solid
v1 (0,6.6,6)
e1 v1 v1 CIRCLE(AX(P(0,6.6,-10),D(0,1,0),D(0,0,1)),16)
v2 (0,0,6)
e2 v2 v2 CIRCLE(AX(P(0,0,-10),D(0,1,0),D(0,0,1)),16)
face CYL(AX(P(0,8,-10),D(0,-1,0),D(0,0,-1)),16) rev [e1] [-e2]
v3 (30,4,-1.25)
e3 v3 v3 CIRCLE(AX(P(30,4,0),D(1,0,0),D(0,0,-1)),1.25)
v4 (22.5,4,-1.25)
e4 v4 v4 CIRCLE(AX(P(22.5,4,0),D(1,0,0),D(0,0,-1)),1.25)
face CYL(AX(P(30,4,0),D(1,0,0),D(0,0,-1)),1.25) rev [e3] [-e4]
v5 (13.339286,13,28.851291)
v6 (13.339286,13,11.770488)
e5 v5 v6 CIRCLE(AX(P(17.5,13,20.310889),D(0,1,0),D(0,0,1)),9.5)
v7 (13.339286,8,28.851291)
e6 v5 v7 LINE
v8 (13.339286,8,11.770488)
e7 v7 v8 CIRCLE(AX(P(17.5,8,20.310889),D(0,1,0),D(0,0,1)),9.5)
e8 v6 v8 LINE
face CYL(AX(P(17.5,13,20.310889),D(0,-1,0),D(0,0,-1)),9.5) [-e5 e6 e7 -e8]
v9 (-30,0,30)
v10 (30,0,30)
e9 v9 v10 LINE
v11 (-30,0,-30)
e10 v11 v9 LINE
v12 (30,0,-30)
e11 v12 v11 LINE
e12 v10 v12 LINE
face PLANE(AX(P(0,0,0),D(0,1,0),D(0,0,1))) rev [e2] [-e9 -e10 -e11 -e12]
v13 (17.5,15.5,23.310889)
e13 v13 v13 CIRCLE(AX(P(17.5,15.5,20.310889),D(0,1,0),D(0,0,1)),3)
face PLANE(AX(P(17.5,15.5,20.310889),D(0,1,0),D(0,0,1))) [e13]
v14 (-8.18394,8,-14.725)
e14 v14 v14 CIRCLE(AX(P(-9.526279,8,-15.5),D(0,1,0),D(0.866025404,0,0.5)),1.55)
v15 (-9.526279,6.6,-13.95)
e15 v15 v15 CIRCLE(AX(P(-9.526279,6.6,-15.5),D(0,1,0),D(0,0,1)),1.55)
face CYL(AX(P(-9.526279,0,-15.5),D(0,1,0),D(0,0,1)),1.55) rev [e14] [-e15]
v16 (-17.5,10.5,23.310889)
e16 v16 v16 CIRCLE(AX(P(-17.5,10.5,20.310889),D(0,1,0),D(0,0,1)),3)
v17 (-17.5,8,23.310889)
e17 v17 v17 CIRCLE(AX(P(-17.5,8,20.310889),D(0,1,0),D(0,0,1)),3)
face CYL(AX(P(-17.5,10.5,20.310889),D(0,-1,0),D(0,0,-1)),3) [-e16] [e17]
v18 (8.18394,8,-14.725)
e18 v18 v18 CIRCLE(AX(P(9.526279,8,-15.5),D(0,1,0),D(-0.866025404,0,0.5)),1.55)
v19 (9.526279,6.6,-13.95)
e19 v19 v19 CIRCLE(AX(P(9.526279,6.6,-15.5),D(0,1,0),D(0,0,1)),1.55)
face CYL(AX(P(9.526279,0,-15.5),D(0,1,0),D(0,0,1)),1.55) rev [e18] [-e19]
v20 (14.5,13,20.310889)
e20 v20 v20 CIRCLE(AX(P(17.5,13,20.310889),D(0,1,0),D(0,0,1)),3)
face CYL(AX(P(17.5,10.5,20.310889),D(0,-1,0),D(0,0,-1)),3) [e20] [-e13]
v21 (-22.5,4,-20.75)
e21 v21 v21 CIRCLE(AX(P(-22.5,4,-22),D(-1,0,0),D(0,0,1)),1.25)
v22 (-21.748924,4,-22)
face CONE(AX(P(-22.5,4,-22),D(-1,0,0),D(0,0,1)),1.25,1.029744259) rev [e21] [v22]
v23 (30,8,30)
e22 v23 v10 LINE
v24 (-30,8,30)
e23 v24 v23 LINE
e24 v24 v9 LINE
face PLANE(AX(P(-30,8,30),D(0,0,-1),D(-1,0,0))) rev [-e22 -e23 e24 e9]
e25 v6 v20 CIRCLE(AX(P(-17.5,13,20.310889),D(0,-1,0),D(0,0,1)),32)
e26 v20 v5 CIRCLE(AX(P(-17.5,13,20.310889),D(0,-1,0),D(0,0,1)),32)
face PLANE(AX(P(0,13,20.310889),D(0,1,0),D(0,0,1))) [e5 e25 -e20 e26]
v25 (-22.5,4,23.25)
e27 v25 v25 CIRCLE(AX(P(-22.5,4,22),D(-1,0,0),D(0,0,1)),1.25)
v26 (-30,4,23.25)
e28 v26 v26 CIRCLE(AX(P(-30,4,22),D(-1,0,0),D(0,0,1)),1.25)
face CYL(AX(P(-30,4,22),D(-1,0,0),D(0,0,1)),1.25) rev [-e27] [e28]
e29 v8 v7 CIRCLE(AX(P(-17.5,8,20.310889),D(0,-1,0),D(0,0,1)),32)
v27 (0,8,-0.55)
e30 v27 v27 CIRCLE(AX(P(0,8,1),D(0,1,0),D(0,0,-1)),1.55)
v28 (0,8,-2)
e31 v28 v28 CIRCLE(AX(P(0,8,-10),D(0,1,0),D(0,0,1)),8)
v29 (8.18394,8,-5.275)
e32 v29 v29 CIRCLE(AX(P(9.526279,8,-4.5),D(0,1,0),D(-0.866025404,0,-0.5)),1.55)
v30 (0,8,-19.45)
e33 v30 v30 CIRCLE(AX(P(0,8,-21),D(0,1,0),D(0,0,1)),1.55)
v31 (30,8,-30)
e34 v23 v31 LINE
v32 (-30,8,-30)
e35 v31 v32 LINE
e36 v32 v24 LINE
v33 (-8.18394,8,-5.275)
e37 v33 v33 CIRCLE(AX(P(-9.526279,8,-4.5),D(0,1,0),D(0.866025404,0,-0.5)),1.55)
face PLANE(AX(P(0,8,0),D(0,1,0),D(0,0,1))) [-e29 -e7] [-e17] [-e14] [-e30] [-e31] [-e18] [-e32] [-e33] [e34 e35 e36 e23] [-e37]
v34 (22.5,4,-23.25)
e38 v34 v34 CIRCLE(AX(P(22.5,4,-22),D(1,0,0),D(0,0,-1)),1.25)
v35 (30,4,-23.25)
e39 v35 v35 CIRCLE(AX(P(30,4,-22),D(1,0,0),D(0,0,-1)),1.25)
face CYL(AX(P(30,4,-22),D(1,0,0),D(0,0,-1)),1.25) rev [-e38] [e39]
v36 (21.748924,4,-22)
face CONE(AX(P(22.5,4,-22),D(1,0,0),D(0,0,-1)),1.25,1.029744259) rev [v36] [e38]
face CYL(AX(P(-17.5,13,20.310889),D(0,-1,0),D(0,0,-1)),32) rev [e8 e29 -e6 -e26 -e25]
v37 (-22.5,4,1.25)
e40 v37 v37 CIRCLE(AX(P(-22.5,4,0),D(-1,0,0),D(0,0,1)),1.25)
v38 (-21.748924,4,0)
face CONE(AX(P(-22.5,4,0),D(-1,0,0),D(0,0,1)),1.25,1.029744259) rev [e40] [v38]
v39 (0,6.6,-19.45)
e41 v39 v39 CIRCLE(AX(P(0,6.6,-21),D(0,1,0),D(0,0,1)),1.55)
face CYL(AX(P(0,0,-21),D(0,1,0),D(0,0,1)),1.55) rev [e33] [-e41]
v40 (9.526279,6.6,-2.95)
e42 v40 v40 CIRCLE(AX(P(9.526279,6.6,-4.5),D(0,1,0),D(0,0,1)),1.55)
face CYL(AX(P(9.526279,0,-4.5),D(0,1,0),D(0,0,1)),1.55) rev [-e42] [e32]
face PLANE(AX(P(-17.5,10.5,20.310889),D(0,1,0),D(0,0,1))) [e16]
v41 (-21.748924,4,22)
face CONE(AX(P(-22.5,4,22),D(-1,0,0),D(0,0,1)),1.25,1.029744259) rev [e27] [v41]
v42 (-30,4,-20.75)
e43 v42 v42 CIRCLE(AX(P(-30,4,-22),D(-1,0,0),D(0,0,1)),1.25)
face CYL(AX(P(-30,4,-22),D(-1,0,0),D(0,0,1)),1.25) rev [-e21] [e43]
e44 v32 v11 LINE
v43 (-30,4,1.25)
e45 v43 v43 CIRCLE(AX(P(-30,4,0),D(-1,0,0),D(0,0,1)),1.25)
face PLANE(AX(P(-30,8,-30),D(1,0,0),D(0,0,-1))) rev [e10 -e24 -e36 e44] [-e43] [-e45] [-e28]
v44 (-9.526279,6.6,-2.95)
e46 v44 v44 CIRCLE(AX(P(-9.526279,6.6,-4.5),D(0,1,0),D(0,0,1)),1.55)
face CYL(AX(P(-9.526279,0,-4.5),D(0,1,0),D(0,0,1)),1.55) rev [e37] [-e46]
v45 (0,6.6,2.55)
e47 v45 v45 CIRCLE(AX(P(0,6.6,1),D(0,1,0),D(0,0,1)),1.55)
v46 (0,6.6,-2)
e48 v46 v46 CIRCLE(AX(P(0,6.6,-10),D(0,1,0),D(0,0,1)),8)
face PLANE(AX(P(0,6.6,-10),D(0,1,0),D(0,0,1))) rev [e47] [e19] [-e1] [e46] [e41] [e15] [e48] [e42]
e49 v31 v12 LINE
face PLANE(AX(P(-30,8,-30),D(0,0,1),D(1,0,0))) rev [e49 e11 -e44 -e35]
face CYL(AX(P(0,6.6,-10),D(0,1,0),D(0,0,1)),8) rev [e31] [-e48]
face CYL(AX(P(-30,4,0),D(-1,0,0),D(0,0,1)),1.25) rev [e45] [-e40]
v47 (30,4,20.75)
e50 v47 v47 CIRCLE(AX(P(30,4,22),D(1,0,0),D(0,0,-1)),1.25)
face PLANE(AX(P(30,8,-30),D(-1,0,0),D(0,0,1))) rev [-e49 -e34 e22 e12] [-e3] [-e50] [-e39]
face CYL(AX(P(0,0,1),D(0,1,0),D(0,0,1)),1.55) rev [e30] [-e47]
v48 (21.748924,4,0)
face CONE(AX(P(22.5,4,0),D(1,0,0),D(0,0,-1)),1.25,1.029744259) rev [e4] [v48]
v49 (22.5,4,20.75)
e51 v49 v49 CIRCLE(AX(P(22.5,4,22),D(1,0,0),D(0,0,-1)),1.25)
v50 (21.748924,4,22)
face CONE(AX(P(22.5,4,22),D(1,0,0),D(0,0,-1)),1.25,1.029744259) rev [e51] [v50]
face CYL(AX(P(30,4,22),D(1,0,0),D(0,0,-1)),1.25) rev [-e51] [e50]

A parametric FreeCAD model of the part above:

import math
import FreeCAD as App
import Part
import Sketcher

V = App.Vector
Q = App.Units.Quantity


def add_polygon(sketch, points):
    """Adds a closed chain of lines whose ends are joined by coincident constraints."""
    first, n = sketch.GeometryCount, len(points)
    for a, b in zip(points, points[1:] + points[:1]):
        sketch.addGeometry(Part.LineSegment(App.Vector(*a, 0), App.Vector(*b, 0)), False)
    for i in range(n):
        sketch.addConstraint(Sketcher.Constraint("Coincident", first + i, 2, first + (i + 1) % n, 1))

doc = App.newDocument("Part")
body = doc.addObject("PartDesign::Body", "Body")

sketch1 = body.newObject("Sketcher::SketchObject", "Sketch")
sketch1.AttachmentSupport = (doc.getObject("XZ_Plane"), [""])
sketch1.MapMode = "FlatFace"
add_polygon(sketch1, [(-30, -30), (-30, 30), (30, 30), (30, -30)])
sketch1.addGeometry(Part.Circle(V(0, -10, 0), V(0, 0, 1), 16), False)
sketch1.addConstraint(Sketcher.Constraint("Vertical", 0))
sketch1.addConstraint(Sketcher.Constraint("Horizontal", 1))
sketch1.addConstraint(Sketcher.Constraint("Vertical", 2))
sketch1.addConstraint(Sketcher.Constraint("Horizontal", 3))
sketch1.addConstraint(Sketcher.Constraint("Symmetric", 0, 2, 2, 2, -1, 1))
sketch1.addConstraint(Sketcher.Constraint("PointOnObject", 4, 3, -2))
sketch1.addConstraint(Sketcher.Constraint("Equal", 3, 0))
sketch1.addConstraint(Sketcher.Constraint("Diameter", 4, Q("32 mm")))
sketch1.addConstraint(Sketcher.Constraint("DistanceX", 1, 1, 1, 2, Q("60 mm")))
sketch1.addConstraint(Sketcher.Constraint("DistanceY", 4, 3, -1, 1, Q("10 mm")))
pad1 = body.newObject("PartDesign::Pad", "Pad")
pad1.Profile = sketch1
pad1.Length = 8
pad1.Reversed = True

sketch2 = body.newObject("Sketcher::SketchObject", "Sketch001")
sketch2.AttachmentSupport = (doc.getObject("XZ_Plane"), [""])
sketch2.MapMode = "FlatFace"
sketch2.AttachmentOffset = App.Placement(V(0, 0, -8), App.Rotation())
sketch2.addGeometry(Part.Circle(V(-17.5, 20.3, 0), V(0, 0, 1), 3), False)
sketch2.addGeometry(Part.Circle(V(17.5, 20.3, 0), V(0, 0, 1), 3), False)
sketch2.addConstraint(Sketcher.Constraint("Equal", 0, 1))
sketch2.addConstraint(Sketcher.Constraint("Symmetric", 0, 3, 1, 3, -2))
sketch2.addConstraint(Sketcher.Constraint("Diameter", 0, Q("6 mm")))
sketch2.addConstraint(Sketcher.Constraint("DistanceX", 0, 3, 1, 3, Q("35 mm")))
sketch2.addConstraint(Sketcher.Constraint("DistanceY", -1, 1, 0, 3, Q("20.310889 mm")))
pad2 = body.newObject("PartDesign::Pad", "Pad001")
pad2.Profile = sketch2
pad2.Length = 2.5
pad2.Reversed = True

sketch3 = body.newObject("Sketcher::SketchObject", "Sketch002")
sketch3.AttachmentSupport = (doc.getObject("XZ_Plane"), [""])
sketch3.MapMode = "FlatFace"
sketch3.AttachmentOffset = App.Placement(V(0, 0, -10.5), App.Rotation())
sketch3.addGeometry(Part.Circle(V(17.5, 20.3, 0), V(0, 0, 1), 3), False)
sketch3.addConstraint(Sketcher.Constraint("Diameter", 0, Q("6 mm")))
sketch3.addConstraint(Sketcher.Constraint("DistanceX", -1, 1, 0, 3, Q("17.5 mm")))
sketch3.addConstraint(Sketcher.Constraint("DistanceY", -1, 1, 0, 3, Q("20.310889 mm")))
pad3 = body.newObject("PartDesign::Pad", "Pad002")
pad3.Profile = sketch3
pad3.Length = 5
pad3.Reversed = True

sketch4 = body.newObject("Sketcher::SketchObject", "Sketch003")
sketch4.AttachmentSupport = (doc.getObject("XZ_Plane"), [""])
sketch4.MapMode = "FlatFace"
sketch4.AttachmentOffset = App.Placement(V(0, 0, -8), App.Rotation())
sketch4.addGeometry(Part.ArcOfCircle(Part.Circle(V(18, 20, 0), V(0, 0, 1), 10), math.radians(-116), math.radians(116)), False)
sketch4.addGeometry(Part.ArcOfCircle(Part.Circle(V(-17, 20, 0), V(0, 0, 1), 32), math.radians(-15), math.radians(15)), False)
sketch4.addConstraint(Sketcher.Constraint("Coincident", 0, 1, 1, 1))
sketch4.addConstraint(Sketcher.Constraint("Coincident", 1, 2, 0, 2))
sketch4.addConstraint(Sketcher.Constraint("Symmetric", 0, 3, 1, 3, -2))
sketch4.addConstraint(Sketcher.Constraint("Radius", 1, Q("32 mm")))
sketch4.addConstraint(Sketcher.Constraint("Radius", 0, Q("9.5 mm")))
sketch4.addConstraint(Sketcher.Constraint("DistanceX", 1, 3, 0, 3, Q("35 mm")))
sketch4.addConstraint(Sketcher.Constraint("DistanceY", -1, 1, 0, 3, Q("20.310889 mm")))
pad4 = body.newObject("PartDesign::Pad", "Pad003")
pad4.Profile = sketch4
pad4.Length = 5
pad4.Reversed = True

sketch5 = body.newObject("Sketcher::SketchObject", "Sketch004")
sketch5.AttachmentSupport = (doc.getObject("XZ_Plane"), [""])
sketch5.MapMode = "FlatFace"
sketch5.AttachmentOffset = App.Placement(V(0, 0, -6.6), App.Rotation())
sketch5.addGeometry(Part.Circle(V(0, -10, 0), V(0, 0, 1), 16), False)
sketch5.addGeometry(Part.Circle(V(0, -10, 0), V(0, 0, 1), 8), False)
sketch5.addConstraint(Sketcher.Constraint("Coincident", 1, 3, 0, 3))
sketch5.addConstraint(Sketcher.Constraint("PointOnObject", 0, 3, -2))
sketch5.addConstraint(Sketcher.Constraint("Diameter", 0, Q("32 mm")))
sketch5.addConstraint(Sketcher.Constraint("Diameter", 1, Q("16 mm")))
sketch5.addConstraint(Sketcher.Constraint("DistanceY", 0, 3, -1, 1, Q("10 mm")))
pad5 = body.newObject("PartDesign::Pad", "Pad004")
pad5.Profile = sketch5
pad5.Length = 1.4
pad5.Reversed = True

sketch6 = body.newObject("Sketcher::SketchObject", "Sketch005")
sketch6.AttachmentSupport = (doc.getObject("XZ_Plane"), [""])
sketch6.MapMode = "FlatFace"
sketch6.AttachmentOffset = App.Placement(V(0, 0, -8), App.Rotation())
sketch6.addGeometry(Part.Circle(V(0, -21, 0), V(0, 0, 1), 1.6), False)
sketch6.addConstraint(Sketcher.Constraint("PointOnObject", 0, 3, -2))
sketch6.addConstraint(Sketcher.Constraint("Diameter", 0, Q("3.1 mm")))
sketch6.addConstraint(Sketcher.Constraint("DistanceY", 0, 3, -1, 1, Q("21 mm")))
pocket1 = body.newObject("PartDesign::Pocket", "Pocket")
pocket1.Profile = sketch6
pocket1.Type = "ThroughAll"
pocket1.Reversed = True
doc.recompute()

datumline = body.newObject("PartDesign::Line", "DatumLine")
datumline.Placement = App.Placement(V(0, 0, -10), App.Rotation(V(0, 0, 1), V(0, 1, 0)))
polarpattern = body.newObject("PartDesign::PolarPattern", "PolarPattern")
polarpattern.Originals = [pocket1]
polarpattern.Axis = (datumline, [""])
polarpattern.Angle = 360
polarpattern.Occurrences = 6
body.Tip = polarpattern

sketch7 = body.newObject("Sketcher::SketchObject", "Sketch006")
sketch7.AttachmentSupport = (doc.getObject("XZ_Plane"), [""])
sketch7.MapMode = "FlatFace"
sketch7.AttachmentOffset = App.Placement(V(0, 0, -4), App.Rotation())
add_polygon(sketch7, [(21.7, 22), (30, 22), (30, 20.8), (22.5, 20.8)])
sketch7.addGeometry(Part.LineSegment(V(30, 22, 0), V(21.7, 22, 0)), True)
sketch7.addConstraint(Sketcher.Constraint("Horizontal", 0))
sketch7.addConstraint(Sketcher.Constraint("Vertical", 1))
sketch7.addConstraint(Sketcher.Constraint("Horizontal", 2))
sketch7.addConstraint(Sketcher.Constraint("Horizontal", 4))
sketch7.addConstraint(Sketcher.Constraint("Coincident", 4, 1, 0, 2))
sketch7.addConstraint(Sketcher.Constraint("Equal", 0, 4))
sketch7.addConstraint(Sketcher.Constraint("Angle", 3, Q("121 deg")))
sketch7.addConstraint(Sketcher.Constraint("DistanceX", 2, 2, 2, 1, Q("7.5 mm")))
sketch7.addConstraint(Sketcher.Constraint("DistanceX", -1, 1, 0, 2, Q("30 mm")))
sketch7.addConstraint(Sketcher.Constraint("DistanceY", -1, 1, 0, 2, Q("22 mm")))
sketch7.addConstraint(Sketcher.Constraint("DistanceY", 1, 2, 1, 1, Q("1.25 mm")))
groove = body.newObject("PartDesign::Groove", "Groove")
groove.Profile = sketch7
groove.ReferenceAxis = (sketch7, ["Axis0"])
groove.Angle = 360
doc.recompute()

linearpattern = body.newObject("PartDesign::LinearPattern", "LinearPattern")
linearpattern.Originals = [groove]
linearpattern.Direction = (doc.getObject("Z_Axis"), [""])
linearpattern.Mode = "offset"
linearpattern.Offset = 22
linearpattern.Occurrences = 2
linearpattern.Reversed = True
body.Tip = linearpattern
doc.recompute()

linearpattern2 = body.newObject("PartDesign::LinearPattern", "LinearPattern001")
linearpattern2.Originals = [groove]
linearpattern2.Direction = (doc.getObject("Z_Axis"), [""])
linearpattern2.Mode = "offset"
linearpattern2.Offset = 44
linearpattern2.Occurrences = 2
linearpattern2.Reversed = True
body.Tip = linearpattern2
doc.recompute()

mirrored = body.newObject("PartDesign::Mirrored", "Mirrored")
mirrored.Originals = [groove]
mirrored.MirrorPlane = (doc.getObject("YZ_Plane"), [""])
body.Tip = mirrored

sketch8 = body.newObject("Sketcher::SketchObject", "Sketch007")
sketch8.AttachmentSupport = (doc.getObject("XZ_Plane"), [""])
sketch8.MapMode = "FlatFace"
sketch8.AttachmentOffset = App.Placement(V(0, 0, -4), App.Rotation())
add_polygon(sketch8, [(-30, 0), (-21.7, 0), (-22.5, -1.2), (-30, -1.2)])
sketch8.addConstraint(Sketcher.Constraint("Horizontal", 0))
sketch8.addConstraint(Sketcher.Constraint("Horizontal", 2))
sketch8.addConstraint(Sketcher.Constraint("Vertical", 3))
sketch8.addConstraint(Sketcher.Constraint("PointOnObject", 0, 2, -1))
sketch8.addConstraint(Sketcher.Constraint("Angle", 1, Q("-121 deg")))
sketch8.addConstraint(Sketcher.Constraint("DistanceX", 2, 2, 2, 1, Q("7.5 mm")))
sketch8.addConstraint(Sketcher.Constraint("DistanceX", 2, 2, -1, 1, Q("30 mm")))
sketch8.addConstraint(Sketcher.Constraint("DistanceY", 3, 1, 3, 2, Q("1.25 mm")))
groove2 = body.newObject("PartDesign::Groove", "Groove001")
groove2.Profile = sketch8
groove2.ReferenceAxis = (sketch8, ["H_Axis"])
groove2.Angle = 360

sketch9 = body.newObject("Sketcher::SketchObject", "Sketch008")
sketch9.AttachmentSupport = (doc.getObject("XZ_Plane"), [""])
sketch9.MapMode = "FlatFace"
sketch9.AttachmentOffset = App.Placement(V(0, 0, -4), App.Rotation())
add_polygon(sketch9, [(-30, -22), (-21.7, -22), (-22.5, -23.2), (-30, -23.2)])
sketch9.addGeometry(Part.LineSegment(V(-21.7, -22, 0), V(-30, -22, 0)), True)
sketch9.addConstraint(Sketcher.Constraint("Horizontal", 0))
sketch9.addConstraint(Sketcher.Constraint("Horizontal", 2))
sketch9.addConstraint(Sketcher.Constraint("Vertical", 3))
sketch9.addConstraint(Sketcher.Constraint("Horizontal", 4))
sketch9.addConstraint(Sketcher.Constraint("Coincident", 4, 1, 0, 2))
sketch9.addConstraint(Sketcher.Constraint("Vertical", 2, 2, 4, 2))
sketch9.addConstraint(Sketcher.Constraint("Angle", 1, Q("-121 deg")))
sketch9.addConstraint(Sketcher.Constraint("DistanceX", 2, 2, 2, 1, Q("7.5 mm")))
sketch9.addConstraint(Sketcher.Constraint("DistanceY", 0, 2, -1, 1, Q("22 mm")))
sketch9.addConstraint(Sketcher.Constraint("DistanceX", 2, 2, -1, 1, Q("30 mm")))
sketch9.addConstraint(Sketcher.Constraint("DistanceY", 3, 1, 3, 2, Q("1.25 mm")))
groove3 = body.newObject("PartDesign::Groove", "Groove002")
groove3.Profile = sketch9
groove3.ReferenceAxis = (sketch9, ["Axis0"])
groove3.Angle = 360

doc.recompute()
